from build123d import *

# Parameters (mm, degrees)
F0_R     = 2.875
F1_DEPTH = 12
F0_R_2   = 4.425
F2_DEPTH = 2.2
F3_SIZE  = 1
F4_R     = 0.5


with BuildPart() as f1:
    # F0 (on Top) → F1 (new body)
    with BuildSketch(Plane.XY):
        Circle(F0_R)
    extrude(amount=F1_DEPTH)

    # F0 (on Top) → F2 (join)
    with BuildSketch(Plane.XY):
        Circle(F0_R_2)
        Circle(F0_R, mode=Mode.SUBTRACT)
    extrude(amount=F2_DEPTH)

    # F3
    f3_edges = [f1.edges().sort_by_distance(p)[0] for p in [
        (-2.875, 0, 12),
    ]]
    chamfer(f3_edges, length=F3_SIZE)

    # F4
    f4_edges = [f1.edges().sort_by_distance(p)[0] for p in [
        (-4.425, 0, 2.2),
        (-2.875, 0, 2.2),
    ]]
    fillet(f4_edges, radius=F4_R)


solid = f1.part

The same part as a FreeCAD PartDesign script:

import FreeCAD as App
import Part
import Sketcher

V = App.Vector


def edges_at(feature, points):
    """Names of the edges that pass closest to the given points."""
    edges = feature.Shape.Edges
    near = lambda p: min(range(len(edges)), key=lambda i: edges[i].distToShape(Part.Vertex(*p))[0])
    return sorted({f"Edge{near(p) + 1}" for p in points})

doc = App.newDocument("Part")
params = doc.addObject("Spreadsheet::Sheet", "Params")
for row, (alias, value) in enumerate([
    ("sketch1_diameter", "5.75 mm"),
    ("pad1_length", "12 mm"),
    ("sketch2_diameter", "8.85 mm"),
    ("sketch2_diameter2", "5.75 mm"),
    ("pad2_length", "2.2 mm"),
    ("chamfer_size", "1 mm"),
    ("fillet_radius", "0.5 mm"),
], start=1):
    params.set(f"A{row}", alias)
    params.set(f"B{row}", "=" + value)
    params.setAlias(f"B{row}", alias)

body = doc.addObject("PartDesign::Body", "Body")

sketch1 = doc.addObject("Sketcher::SketchObject", "Sketch")
body.addObject(sketch1)
sketch1.AttachmentSupport = (doc.XY_Plane, [""])
sketch1.MapMode = "FlatFace"
sketch1.addGeometry(Part.Circle(V(0, 0, 0), V(0, 0, 1), 2.9), False)
sketch1.addConstraint(Sketcher.Constraint("Coincident", 0, 3, -1, 1))
sketch1.addConstraint(Sketcher.Constraint("Diameter", 0, 5.75))
sketch1.setExpression("Constraints[1]", "Params.sketch1_diameter")
pad1 = doc.addObject("PartDesign::Pad", "Pad")
body.addObject(pad1)
pad1.Profile = sketch1
pad1.setExpression("Length", "Params.pad1_length")

sketch2 = doc.addObject("Sketcher::SketchObject", "Sketch001")
body.addObject(sketch2)
sketch2.AttachmentSupport = (doc.XY_Plane, [""])
sketch2.MapMode = "FlatFace"
sketch2.addGeometry(Part.Circle(V(0, 0, 0), V(0, 0, 1), 4.4), False)
sketch2.addGeometry(Part.Circle(V(0, 0, 0), V(0, 0, 1), 2.9), False)
sketch2.addConstraint(Sketcher.Constraint("Coincident", 0, 3, -1, 1))
sketch2.addConstraint(Sketcher.Constraint("Coincident", 1, 3, -1, 1))
sketch2.addConstraint(Sketcher.Constraint("Diameter", 0, 8.85))
sketch2.addConstraint(Sketcher.Constraint("Diameter", 1, 5.75))
sketch2.setExpression("Constraints[2]", "Params.sketch2_diameter")
sketch2.setExpression("Constraints[3]", "Params.sketch2_diameter2")
pad2 = doc.addObject("PartDesign::Pad", "Pad001")
body.addObject(pad2)
pad2.Profile = sketch2
pad2.setExpression("Length", "Params.pad2_length")
doc.recompute()

chamfer = doc.addObject("PartDesign::Chamfer", "Chamfer")
body.addObject(chamfer)
chamfer.Base = (pad2, edges_at(pad2, [(-2.875, 0, 12)]))
chamfer.setExpression("Size", "Params.chamfer_size")
doc.recompute()

fillet = doc.addObject("PartDesign::Fillet", "Fillet")
body.addObject(fillet)
fillet.Base = (chamfer, edges_at(chamfer, [(-4.425, 0, 2.2), (-2.875, 0, 2.2)]))
fillet.setExpression("Radius", "Params.fillet_radius")

doc.recompute()
